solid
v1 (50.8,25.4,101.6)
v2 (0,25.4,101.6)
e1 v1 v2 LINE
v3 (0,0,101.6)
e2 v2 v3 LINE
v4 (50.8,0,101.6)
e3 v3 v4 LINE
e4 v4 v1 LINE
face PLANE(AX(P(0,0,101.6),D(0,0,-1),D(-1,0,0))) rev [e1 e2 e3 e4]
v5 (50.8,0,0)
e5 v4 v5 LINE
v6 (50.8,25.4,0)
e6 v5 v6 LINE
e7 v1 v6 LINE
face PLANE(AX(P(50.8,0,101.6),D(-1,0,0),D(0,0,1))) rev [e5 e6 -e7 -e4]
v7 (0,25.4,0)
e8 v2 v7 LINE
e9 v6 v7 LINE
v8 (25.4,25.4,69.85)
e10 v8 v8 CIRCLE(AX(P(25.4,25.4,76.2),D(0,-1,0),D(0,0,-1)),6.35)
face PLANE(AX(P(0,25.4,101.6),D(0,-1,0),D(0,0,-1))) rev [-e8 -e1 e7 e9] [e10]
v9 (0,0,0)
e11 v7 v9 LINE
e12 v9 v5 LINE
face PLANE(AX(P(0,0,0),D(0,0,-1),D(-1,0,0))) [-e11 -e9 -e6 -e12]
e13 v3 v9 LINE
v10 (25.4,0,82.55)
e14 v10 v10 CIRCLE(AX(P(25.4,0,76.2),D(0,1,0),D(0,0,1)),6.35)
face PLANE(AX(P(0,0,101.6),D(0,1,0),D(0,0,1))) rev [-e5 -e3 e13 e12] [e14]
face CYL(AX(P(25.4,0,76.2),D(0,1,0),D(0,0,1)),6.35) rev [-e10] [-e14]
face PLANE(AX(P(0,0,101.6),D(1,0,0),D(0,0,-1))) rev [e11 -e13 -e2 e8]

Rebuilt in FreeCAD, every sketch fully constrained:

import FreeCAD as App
import Part
import Sketcher
Q = App.Units.Quantity


def add_polygon(sketch, points):
    """Adds a closed chain of lines whose ends are joined by coincident constraints."""
    first, n = sketch.GeometryCount, len(points)
    for a, b in zip(points, points[1:] + points[:1]):
        sketch.addGeometry(Part.LineSegment(App.Vector(*a, 0), App.Vector(*b, 0)), False)
    for i in range(n):
        sketch.addConstraint(Sketcher.Constraint("Coincident", first + i, 2, first + (i + 1) % n, 1))

doc = App.newDocument("Part")
body = doc.addObject("PartDesign::Body", "Body")

sketch1 = body.newObject("Sketcher::SketchObject", "Sketch")
sketch1.AttachmentSupport = (doc.getObject("XY_Plane"), [""])
sketch1.MapMode = "FlatFace"
add_polygon(sketch1, [(0, 25), (0, 0), (51, 0), (51, 25)])
sketch1.addConstraint([
    Sketcher.Constraint("Vertical", 0),
    Sketcher.Constraint("Horizontal", 1),
    Sketcher.Constraint("Vertical", 2),
    Sketcher.Constraint("Horizontal", 3),
    Sketcher.Constraint("Coincident", 0, 2, -1, 1),
    Sketcher.Constraint("DistanceX", 1, 1, 1, 2, Q("2 in")),
    Sketcher.Constraint("DistanceY", 0, 2, 0, 1, Q("1 in")),
])
pad1 = body.newObject("PartDesign::Pad", "Pad")
pad1.Profile = sketch1
pad1.Length = Q("4 in")

sketch2 = body.newObject("Sketcher::SketchObject", "Sketch001")
sketch2.AttachmentSupport = (doc.getObject("XZ_Plane"), [""])
sketch2.MapMode = "FlatFace"
sketch2.AttachmentOffset = App.Placement(App.Vector(0, 0, -1 * 25.4), App.Rotation())
sketch2.addGeometry(Part.Circle(App.Vector(25, 76, 0), App.Vector(0, 0, 1), 6), False)
sketch2.addConstraint([
    Sketcher.Constraint("Diameter", 0, Q("0.5 in")),
    Sketcher.Constraint("DistanceX", -1, 1, 0, 3, Q("1 in")),
    Sketcher.Constraint("DistanceY", -1, 1, 0, 3, Q("3 in")),
])
pocket1 = body.newObject("PartDesign::Pocket", "Pocket")
pocket1.Profile = sketch2
pocket1.Type = "ThroughAll"
pocket1.Midplane = True

doc.recompute()
